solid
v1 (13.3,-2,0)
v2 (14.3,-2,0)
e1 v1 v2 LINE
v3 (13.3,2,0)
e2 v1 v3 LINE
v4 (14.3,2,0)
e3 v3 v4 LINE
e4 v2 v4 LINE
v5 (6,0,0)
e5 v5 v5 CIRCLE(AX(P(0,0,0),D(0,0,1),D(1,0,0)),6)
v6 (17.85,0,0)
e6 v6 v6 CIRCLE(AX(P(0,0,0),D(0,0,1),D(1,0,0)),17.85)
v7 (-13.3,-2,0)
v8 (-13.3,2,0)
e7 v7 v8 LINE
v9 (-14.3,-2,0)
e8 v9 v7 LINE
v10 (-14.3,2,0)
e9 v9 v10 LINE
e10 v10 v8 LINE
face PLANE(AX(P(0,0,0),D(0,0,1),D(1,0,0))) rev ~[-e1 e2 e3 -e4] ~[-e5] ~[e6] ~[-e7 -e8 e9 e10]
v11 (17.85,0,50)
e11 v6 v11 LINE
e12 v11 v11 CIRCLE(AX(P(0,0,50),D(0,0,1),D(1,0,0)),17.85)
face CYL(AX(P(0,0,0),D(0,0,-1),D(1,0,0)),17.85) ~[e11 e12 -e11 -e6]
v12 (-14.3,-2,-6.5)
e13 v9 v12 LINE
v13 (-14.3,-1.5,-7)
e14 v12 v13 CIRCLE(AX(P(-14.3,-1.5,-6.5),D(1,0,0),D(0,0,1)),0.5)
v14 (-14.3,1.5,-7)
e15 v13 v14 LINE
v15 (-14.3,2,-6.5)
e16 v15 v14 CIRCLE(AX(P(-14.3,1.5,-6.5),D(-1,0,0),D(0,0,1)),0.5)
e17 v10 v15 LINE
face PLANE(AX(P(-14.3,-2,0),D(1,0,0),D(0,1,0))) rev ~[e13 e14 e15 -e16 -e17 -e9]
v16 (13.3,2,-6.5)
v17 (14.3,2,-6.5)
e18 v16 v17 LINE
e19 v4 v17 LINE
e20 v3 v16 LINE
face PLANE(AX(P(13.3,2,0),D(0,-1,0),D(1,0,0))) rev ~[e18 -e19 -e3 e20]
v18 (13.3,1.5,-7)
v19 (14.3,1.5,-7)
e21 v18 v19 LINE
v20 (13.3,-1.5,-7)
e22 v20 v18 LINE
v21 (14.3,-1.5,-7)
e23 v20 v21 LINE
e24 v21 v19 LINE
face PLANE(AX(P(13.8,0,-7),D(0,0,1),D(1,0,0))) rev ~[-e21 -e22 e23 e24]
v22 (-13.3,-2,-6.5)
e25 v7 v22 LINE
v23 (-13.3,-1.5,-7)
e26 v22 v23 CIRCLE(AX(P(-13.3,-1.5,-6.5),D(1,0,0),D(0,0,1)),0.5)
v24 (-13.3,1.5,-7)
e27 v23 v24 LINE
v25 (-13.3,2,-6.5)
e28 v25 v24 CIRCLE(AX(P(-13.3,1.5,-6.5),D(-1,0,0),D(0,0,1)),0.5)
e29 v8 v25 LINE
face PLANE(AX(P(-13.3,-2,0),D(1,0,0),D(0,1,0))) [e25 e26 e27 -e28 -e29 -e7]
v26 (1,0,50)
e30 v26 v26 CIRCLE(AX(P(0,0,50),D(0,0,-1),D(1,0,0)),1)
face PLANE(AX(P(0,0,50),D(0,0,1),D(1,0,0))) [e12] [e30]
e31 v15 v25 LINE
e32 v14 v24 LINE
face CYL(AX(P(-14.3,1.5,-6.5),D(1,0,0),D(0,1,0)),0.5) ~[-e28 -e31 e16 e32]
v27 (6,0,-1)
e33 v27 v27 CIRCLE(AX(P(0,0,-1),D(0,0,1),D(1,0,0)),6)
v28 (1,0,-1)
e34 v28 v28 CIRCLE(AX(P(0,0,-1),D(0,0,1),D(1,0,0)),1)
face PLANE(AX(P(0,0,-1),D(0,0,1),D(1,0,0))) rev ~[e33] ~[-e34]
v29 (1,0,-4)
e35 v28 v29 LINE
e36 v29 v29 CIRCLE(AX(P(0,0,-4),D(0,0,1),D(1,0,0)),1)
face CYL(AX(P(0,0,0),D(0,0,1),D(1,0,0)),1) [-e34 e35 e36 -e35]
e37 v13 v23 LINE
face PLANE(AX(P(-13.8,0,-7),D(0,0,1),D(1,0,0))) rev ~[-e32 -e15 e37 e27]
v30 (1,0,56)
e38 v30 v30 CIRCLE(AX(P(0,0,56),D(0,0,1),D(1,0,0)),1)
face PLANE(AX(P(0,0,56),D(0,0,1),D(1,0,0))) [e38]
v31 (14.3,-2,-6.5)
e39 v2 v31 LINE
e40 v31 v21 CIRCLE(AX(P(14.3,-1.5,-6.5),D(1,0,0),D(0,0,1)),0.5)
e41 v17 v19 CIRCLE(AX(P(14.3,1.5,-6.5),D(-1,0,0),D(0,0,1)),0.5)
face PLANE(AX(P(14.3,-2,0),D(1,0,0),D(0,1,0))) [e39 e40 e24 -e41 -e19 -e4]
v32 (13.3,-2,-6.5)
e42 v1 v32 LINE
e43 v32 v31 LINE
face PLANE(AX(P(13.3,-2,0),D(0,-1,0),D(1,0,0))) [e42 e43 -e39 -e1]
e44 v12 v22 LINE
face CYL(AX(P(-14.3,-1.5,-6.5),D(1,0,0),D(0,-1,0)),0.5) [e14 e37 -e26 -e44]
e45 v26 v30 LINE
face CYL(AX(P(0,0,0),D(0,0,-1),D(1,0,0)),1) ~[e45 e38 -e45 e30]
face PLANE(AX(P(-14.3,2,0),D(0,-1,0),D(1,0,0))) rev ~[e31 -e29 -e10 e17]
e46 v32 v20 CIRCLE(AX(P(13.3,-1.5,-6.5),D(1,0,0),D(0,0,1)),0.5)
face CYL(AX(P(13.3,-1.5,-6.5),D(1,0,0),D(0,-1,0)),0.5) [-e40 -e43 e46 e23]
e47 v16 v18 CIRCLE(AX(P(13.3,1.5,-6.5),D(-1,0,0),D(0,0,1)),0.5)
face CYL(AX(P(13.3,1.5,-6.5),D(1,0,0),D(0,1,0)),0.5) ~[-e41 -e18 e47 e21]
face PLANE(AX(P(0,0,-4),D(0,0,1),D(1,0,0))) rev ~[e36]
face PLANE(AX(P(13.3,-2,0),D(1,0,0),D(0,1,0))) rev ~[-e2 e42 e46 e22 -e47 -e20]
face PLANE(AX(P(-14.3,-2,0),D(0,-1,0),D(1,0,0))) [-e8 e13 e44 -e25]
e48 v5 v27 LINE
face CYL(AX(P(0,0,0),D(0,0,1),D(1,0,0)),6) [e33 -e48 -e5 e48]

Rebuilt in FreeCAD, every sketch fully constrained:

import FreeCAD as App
import Part
import Sketcher
from FreeCAD import Vector
Q = App.Units.Quantity


def edges_at(feature, points):
    """Names of the edges that pass closest to the given points."""
    edges = feature.Shape.Edges
    near = lambda p: min(range(len(edges)), key=lambda i: edges[i].distToShape(Part.Vertex(*p))[0])
    return sorted({f"Edge{near(p) + 1}" for p in points})

doc = App.newDocument("Part")
params = doc.addObject("Spreadsheet::Sheet", "Params")
for row, (alias, value) in enumerate([
    ("sketch1_diameter", "35.7 mm"),
    ("pad1_length", "50 mm"),
    ("sketch2_diameter", "2 mm"),
    ("pad2_length", "4 mm"),
    ("pad2_length2", "56 mm"),
    ("sketch3_diameter", "12 mm"),
    ("pad3_length", "1 mm"),
    ("sketch4_width", "1 mm"),
    ("sketch4_height", "4 mm"),
    ("pad4_length", "7 mm"),
    ("fillet_radius", "0.5 mm"),
], start=1):
    params.set(f"A{row}", alias)
    params.set(f"B{row}", "=" + value)
    params.setAlias(f"B{row}", alias)

body = doc.addObject("PartDesign::Body", "Body")

# Sketch on XY plane
sketch1 = doc.addObject("Sketcher::SketchObject", "Sketch")
body.addObject(sketch1)
sketch1.AttachmentSupport = (doc.XY_Plane, [""])
sketch1.MapMode = "FlatFace"
sketch1.addGeometry(Part.Circle(Vector(0, 0, 0), Vector(0, 0, 1), 18), False)
sketch1.addConstraint(Sketcher.Constraint("Coincident", 0, 3, -1, 1))
sketch1.addConstraint(Sketcher.Constraint("Diameter", 0, Q("35.7 mm")))
sketch1.setExpression("Constraints[1]", "Params.sketch1_diameter")
pad1 = doc.addObject("PartDesign::Pad", "Pad")
body.addObject(pad1)
pad1.Profile = sketch1
pad1.setExpression("Length", "Params.pad1_length")

# Sketch on XY plane
sketch2 = doc.addObject("Sketcher::SketchObject", "Sketch001")
body.addObject(sketch2)
sketch2.AttachmentSupport = (doc.XY_Plane, [""])
sketch2.MapMode = "FlatFace"
sketch2.addGeometry(Part.Circle(Vector(0, 0, 0), Vector(0, 0, 1), 1), False)
sketch2.addConstraint(Sketcher.Constraint("Coincident", 0, 3, -1, 1))
sketch2.addConstraint(Sketcher.Constraint("Diameter", 0, Q("2 mm")))
sketch2.setExpression("Constraints[1]", "Params.sketch2_diameter")
pad2 = doc.addObject("PartDesign::Pad", "Pad001")
body.addObject(pad2)
pad2.Profile = sketch2
pad2.Type = "TwoLengths"
pad2.setExpression("Length", "Params.pad2_length")
pad2.setExpression("Length2", "Params.pad2_length2")
pad2.Reversed = True

# Sketch on XY plane
sketch3 = doc.addObject("Sketcher::SketchObject", "Sketch002")
body.addObject(sketch3)
sketch3.AttachmentSupport = (doc.XY_Plane, [""])
sketch3.MapMode = "FlatFace"
sketch3.addGeometry(Part.Circle(Vector(0, 0, 0), Vector(0, 0, 1), 6), False)
sketch3.addConstraint(Sketcher.Constraint("Coincident", 0, 3, -1, 1))
sketch3.addConstraint(Sketcher.Constraint("Diameter", 0, Q("12 mm")))
sketch3.setExpression("Constraints[1]", "Params.sketch3_diameter")
pad3 = doc.addObject("PartDesign::Pad", "Pad002")
body.addObject(pad3)
pad3.Profile = sketch3
pad3.setExpression("Length", "Params.pad3_length")
pad3.Reversed = True

# Sketch on XY plane
sketch4 = doc.addObject("Sketcher::SketchObject", "Sketch003")
body.addObject(sketch4)
sketch4.AttachmentSupport = (doc.XY_Plane, [""])
sketch4.MapMode = "FlatFace"
sketch4.addGeometry(Part.LineSegment(Vector(-14.3, 2, 0), Vector(-14.3, -2, 0)), False)
sketch4.addGeometry(Part.LineSegment(Vector(-14.3, -2, 0), Vector(-13.3, -2, 0)), False)
sketch4.addGeometry(Part.LineSegment(Vector(-13.3, -2, 0), Vector(-13.3, 2, 0)), False)
sketch4.addGeometry(Part.LineSegment(Vector(-13.3, 2, 0), Vector(-14.3, 2, 0)), False)
sketch4.addGeometry(Part.LineSegment(Vector(13.3, 2, 0), Vector(13.3, -2, 0)), False)
sketch4.addGeometry(Part.LineSegment(Vector(13.3, -2, 0), Vector(14.3, -2, 0)), False)
sketch4.addGeometry(Part.LineSegment(Vector(14.3, -2, 0), Vector(14.3, 2, 0)), False)
sketch4.addGeometry(Part.LineSegment(Vector(14.3, 2, 0), Vector(13.3, 2, 0)), False)
sketch4.addConstraint(Sketcher.Constraint("Coincident", 0, 2, 1, 1))
sketch4.addConstraint(Sketcher.Constraint("Coincident", 1, 2, 2, 1))
sketch4.addConstraint(Sketcher.Constraint("Coincident", 2, 2, 3, 1))
sketch4.addConstraint(Sketcher.Constraint("Coincident", 3, 2, 0, 1))
sketch4.addConstraint(Sketcher.Constraint("Coincident", 4, 2, 5, 1))
sketch4.addConstraint(Sketcher.Constraint("Coincident", 5, 2, 6, 1))
sketch4.addConstraint(Sketcher.Constraint("Coincident", 6, 2, 7, 1))
sketch4.addConstraint(Sketcher.Constraint("Coincident", 7, 2, 4, 1))
sketch4.addConstraint(Sketcher.Constraint("Vertical", 0))
sketch4.addConstraint(Sketcher.Constraint("Horizontal", 1))
sketch4.addConstraint(Sketcher.Constraint("Vertical", 2))
sketch4.addConstraint(Sketcher.Constraint("Horizontal", 3))
sketch4.addConstraint(Sketcher.Constraint("Vertical", 4))
sketch4.addConstraint(Sketcher.Constraint("Horizontal", 5))
sketch4.addConstraint(Sketcher.Constraint("Vertical", 6))
sketch4.addConstraint(Sketcher.Constraint("Horizontal", 7))
sketch4.addConstraint(Sketcher.Constraint("Symmetric", 2, 2, 4, 2, -1, 1))
sketch4.addConstraint(Sketcher.Constraint("Symmetric", 0, 2, 6, 2, -1, 1))
sketch4.addConstraint(Sketcher.Constraint("Horizontal", 1, 2, 4, 2))
sketch4.addConstraint(Sketcher.Constraint("DistanceX", 1, 1, 1, 2, Q("1 mm")))
sketch4.addConstraint(Sketcher.Constraint("DistanceY", 0, 2, 0, 1, Q("4 mm")))
sketch4.addConstraint(Sketcher.Constraint("DistanceX", 0, 2, -1, 1, Q("14.3 mm")))
sketch4.setExpression("Constraints[19]", "Params.sketch4_width")
sketch4.setExpression("Constraints[20]", "Params.sketch4_height")
pad4 = doc.addObject("PartDesign::Pad", "Pad003")
body.addObject(pad4)
pad4.Profile = sketch4
pad4.setExpression("Length", "Params.pad4_length")
pad4.Reversed = True
doc.recompute()

fillet = doc.addObject("PartDesign::Fillet", "Fillet")
body.addObject(fillet)
fillet.Base = (pad4, edges_at(pad4, [
    (13.8, -2, -7),
    (-13.8, -2, -7),
    (-13.8, 2, -7),
    (13.8, 2, -7),
]))
fillet.setExpression("Radius", "Params.fillet_radius")

doc.recompute()
